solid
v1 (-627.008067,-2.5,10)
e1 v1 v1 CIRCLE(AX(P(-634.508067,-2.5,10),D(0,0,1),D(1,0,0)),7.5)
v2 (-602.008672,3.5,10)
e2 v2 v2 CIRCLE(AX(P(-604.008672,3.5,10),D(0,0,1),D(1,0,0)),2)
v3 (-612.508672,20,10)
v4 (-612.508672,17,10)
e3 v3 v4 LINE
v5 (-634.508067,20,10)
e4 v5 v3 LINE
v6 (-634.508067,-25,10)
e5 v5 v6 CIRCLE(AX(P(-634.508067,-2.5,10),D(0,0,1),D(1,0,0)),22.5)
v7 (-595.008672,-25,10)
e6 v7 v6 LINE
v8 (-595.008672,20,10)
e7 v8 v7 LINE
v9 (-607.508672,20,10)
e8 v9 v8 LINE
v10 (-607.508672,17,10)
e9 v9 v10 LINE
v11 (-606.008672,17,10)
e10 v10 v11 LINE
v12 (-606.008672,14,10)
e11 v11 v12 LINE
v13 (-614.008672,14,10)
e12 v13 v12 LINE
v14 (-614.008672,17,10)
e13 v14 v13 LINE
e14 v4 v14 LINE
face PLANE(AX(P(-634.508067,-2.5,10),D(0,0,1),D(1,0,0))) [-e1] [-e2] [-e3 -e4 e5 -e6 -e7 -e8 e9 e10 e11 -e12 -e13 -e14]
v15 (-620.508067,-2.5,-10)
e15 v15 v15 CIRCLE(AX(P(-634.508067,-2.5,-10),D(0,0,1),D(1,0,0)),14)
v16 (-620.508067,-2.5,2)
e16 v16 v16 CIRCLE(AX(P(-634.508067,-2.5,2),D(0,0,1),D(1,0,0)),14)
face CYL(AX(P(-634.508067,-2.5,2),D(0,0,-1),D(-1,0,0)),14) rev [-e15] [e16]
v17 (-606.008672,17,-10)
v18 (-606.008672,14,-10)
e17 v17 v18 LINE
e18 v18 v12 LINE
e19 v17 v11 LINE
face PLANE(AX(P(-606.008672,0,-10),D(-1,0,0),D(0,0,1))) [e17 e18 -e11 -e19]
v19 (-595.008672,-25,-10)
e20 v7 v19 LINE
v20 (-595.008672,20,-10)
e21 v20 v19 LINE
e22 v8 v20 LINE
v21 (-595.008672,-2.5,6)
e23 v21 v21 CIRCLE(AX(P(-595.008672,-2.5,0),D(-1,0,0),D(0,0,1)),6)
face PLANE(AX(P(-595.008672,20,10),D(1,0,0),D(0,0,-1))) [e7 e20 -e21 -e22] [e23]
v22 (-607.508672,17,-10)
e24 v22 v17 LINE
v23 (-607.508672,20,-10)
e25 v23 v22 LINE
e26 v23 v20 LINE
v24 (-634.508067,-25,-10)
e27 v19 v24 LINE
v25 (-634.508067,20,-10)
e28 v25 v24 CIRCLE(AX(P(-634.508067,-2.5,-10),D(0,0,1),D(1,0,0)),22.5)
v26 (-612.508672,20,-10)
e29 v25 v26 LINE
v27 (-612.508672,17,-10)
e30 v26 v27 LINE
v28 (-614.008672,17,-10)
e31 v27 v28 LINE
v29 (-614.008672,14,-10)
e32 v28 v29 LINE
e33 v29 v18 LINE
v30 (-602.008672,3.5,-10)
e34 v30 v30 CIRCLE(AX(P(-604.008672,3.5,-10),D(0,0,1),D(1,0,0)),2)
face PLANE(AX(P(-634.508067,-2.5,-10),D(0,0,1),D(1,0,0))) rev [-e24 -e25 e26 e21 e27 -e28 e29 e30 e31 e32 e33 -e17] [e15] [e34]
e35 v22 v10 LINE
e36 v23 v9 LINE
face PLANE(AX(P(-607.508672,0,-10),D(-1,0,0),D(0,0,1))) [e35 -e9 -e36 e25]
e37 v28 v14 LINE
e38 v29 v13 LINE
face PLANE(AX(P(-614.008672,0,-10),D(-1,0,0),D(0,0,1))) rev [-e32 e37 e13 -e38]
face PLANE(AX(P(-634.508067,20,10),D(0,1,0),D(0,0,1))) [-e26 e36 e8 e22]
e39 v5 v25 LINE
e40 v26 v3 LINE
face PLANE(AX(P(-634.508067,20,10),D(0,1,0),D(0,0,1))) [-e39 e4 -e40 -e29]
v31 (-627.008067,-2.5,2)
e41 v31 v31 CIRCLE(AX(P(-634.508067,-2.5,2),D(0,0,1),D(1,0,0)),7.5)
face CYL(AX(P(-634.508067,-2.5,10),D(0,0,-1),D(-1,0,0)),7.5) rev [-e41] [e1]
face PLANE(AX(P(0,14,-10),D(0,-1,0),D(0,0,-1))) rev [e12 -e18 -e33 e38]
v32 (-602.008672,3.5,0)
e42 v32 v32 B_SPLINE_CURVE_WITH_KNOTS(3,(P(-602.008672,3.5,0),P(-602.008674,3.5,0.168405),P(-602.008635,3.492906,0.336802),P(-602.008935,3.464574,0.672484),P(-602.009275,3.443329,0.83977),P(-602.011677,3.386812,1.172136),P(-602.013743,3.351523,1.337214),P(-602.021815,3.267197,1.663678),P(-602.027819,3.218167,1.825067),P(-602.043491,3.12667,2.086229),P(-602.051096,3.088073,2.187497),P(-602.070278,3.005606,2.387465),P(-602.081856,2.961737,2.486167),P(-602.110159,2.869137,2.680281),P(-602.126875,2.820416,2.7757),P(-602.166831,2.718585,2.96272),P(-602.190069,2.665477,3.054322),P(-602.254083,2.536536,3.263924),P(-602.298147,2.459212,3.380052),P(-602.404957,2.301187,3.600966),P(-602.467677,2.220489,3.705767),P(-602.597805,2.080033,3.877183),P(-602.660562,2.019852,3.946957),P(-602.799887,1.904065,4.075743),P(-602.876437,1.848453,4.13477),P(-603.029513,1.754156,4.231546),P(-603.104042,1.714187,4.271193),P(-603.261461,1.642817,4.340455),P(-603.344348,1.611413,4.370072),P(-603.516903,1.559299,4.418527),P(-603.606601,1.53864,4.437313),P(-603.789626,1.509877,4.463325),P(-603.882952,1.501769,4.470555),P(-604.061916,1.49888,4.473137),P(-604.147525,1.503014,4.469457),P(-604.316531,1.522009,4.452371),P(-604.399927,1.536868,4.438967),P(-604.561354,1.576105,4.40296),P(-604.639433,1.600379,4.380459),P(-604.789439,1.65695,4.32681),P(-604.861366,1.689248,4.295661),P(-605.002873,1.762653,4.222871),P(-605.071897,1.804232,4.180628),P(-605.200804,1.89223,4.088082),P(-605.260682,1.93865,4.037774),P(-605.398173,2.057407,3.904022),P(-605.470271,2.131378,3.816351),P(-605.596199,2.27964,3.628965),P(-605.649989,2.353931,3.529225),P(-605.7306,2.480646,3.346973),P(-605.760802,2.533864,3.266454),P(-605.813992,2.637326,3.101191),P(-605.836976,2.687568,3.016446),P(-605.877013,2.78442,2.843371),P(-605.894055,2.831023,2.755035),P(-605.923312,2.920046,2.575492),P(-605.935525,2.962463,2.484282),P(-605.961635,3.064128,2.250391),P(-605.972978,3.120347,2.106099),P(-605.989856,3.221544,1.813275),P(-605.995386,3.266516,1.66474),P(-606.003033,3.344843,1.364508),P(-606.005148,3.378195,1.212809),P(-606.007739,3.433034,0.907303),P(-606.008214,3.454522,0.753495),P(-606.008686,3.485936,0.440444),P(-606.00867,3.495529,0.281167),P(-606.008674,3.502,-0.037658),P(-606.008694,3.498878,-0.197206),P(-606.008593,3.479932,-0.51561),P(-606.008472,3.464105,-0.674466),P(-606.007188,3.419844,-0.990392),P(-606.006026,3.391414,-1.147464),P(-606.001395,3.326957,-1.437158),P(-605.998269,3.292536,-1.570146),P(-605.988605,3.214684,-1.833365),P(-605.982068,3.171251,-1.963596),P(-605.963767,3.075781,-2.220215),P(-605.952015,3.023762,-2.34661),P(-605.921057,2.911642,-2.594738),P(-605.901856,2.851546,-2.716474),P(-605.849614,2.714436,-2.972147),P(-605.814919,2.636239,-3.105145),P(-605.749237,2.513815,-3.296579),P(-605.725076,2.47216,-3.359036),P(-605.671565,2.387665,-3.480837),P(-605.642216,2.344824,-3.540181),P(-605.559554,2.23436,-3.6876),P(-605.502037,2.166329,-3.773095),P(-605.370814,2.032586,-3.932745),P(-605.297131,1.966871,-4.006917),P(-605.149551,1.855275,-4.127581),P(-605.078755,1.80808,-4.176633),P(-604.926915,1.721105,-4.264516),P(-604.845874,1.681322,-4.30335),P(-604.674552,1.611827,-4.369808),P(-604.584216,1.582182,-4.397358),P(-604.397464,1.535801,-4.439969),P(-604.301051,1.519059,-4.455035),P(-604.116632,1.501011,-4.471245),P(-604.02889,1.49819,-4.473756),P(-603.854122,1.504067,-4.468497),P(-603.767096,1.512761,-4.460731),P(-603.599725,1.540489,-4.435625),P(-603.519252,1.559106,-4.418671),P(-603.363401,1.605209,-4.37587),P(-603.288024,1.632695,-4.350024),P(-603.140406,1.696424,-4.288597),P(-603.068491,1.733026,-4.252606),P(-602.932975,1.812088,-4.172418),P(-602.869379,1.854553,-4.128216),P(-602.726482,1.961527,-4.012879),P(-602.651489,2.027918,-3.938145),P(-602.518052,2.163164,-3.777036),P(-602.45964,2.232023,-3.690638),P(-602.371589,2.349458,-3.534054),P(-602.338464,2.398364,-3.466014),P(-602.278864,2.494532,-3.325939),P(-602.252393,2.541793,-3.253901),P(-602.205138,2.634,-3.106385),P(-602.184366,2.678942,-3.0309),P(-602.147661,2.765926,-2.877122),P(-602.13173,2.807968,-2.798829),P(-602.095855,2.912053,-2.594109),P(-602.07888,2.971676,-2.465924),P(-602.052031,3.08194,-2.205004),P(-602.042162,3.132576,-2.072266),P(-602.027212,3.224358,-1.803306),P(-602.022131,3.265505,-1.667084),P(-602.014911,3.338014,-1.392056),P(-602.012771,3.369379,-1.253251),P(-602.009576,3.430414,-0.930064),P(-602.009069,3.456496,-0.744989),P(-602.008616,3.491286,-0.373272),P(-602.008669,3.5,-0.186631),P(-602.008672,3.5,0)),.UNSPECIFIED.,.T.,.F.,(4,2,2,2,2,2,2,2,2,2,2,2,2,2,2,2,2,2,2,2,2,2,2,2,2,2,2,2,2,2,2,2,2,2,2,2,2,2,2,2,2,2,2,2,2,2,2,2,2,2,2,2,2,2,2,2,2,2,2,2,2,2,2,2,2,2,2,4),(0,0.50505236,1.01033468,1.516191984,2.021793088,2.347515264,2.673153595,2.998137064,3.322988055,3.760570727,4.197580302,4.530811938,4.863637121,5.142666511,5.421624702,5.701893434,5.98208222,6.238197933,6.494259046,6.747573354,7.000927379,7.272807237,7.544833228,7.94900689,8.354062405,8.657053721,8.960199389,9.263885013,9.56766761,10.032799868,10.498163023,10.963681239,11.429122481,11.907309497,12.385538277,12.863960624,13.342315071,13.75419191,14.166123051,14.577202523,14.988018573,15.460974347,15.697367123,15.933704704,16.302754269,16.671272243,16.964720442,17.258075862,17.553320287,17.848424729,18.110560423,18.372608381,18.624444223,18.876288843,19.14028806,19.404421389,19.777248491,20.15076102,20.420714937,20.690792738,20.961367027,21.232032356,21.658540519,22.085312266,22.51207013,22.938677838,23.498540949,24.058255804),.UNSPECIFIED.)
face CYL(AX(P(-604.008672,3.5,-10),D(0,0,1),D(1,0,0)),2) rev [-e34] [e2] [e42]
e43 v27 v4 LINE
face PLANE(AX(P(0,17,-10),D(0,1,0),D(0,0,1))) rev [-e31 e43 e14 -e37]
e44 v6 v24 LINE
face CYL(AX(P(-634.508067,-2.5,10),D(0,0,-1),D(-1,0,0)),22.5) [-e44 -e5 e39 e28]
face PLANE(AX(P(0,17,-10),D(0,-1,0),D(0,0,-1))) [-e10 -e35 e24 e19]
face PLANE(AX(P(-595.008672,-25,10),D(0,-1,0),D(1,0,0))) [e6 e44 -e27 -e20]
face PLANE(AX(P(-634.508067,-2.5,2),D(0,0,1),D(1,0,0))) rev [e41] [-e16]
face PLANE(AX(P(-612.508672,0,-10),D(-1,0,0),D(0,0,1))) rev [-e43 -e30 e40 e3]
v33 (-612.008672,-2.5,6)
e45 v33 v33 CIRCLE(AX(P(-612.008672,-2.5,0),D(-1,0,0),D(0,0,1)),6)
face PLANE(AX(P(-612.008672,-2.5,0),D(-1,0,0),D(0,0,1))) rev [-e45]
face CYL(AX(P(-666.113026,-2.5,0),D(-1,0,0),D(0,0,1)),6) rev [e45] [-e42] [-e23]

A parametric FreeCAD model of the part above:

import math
import FreeCAD as App
import Part
import Sketcher

V = App.Vector


def add_polygon(sketch, points):
    """Adds a closed chain of lines whose ends are joined by coincident constraints."""
    first, n = sketch.GeometryCount, len(points)
    for a, b in zip(points, points[1:] + points[:1]):
        sketch.addGeometry(Part.LineSegment(App.Vector(*a, 0), App.Vector(*b, 0)), False)
    for i in range(n):
        sketch.addConstraint(Sketcher.Constraint("Coincident", first + i, 2, first + (i + 1) % n, 1))

doc = App.newDocument("Part")
body = doc.addObject("PartDesign::Body", "Body")

# Sketch on XY plane
sketch1 = body.newObject("Sketcher::SketchObject", "Sketch")
sketch1.AttachmentSupport = (doc.getObject("XY_Plane"), [""])
sketch1.MapMode = "FlatFace"
sketch1.addGeometry(Part.LineSegment(V(-595, 20, 0), V(-635, 20, 0)), False)
sketch1.addGeometry(Part.ArcOfCircle(Part.Circle(V(-635, -2, 0), V(0, 0, 1), 22), math.radians(90), math.radians(270)), False)
sketch1.addGeometry(Part.LineSegment(V(-635, -25, 0), V(-595, -25, 0)), False)
sketch1.addGeometry(Part.LineSegment(V(-595, -25, 0), V(-595, 20, 0)), False)
sketch1.addGeometry(Part.Circle(V(-635, -2, 0), V(0, 0, 1), 8), False)
sketch1.addConstraint(Sketcher.Constraint("Tangent", 0, 2, 1, 1))
sketch1.addConstraint(Sketcher.Constraint("Tangent", 1, 2, 2, 1))
sketch1.addConstraint(Sketcher.Constraint("Coincident", 2, 2, 3, 1))
sketch1.addConstraint(Sketcher.Constraint("Coincident", 3, 2, 0, 1))
sketch1.addConstraint(Sketcher.Constraint("Horizontal", 0))
sketch1.addConstraint(Sketcher.Constraint("Horizontal", 2))
sketch1.addConstraint(Sketcher.Constraint("Vertical", 3))
sketch1.addConstraint(Sketcher.Constraint("Coincident", 4, 3, 1, 3))
sketch1.addConstraint(Sketcher.Constraint("Diameter", 4, 15.0))
sketch1.addConstraint(Sketcher.Constraint("Radius", 1, 22.5))
sketch1.addConstraint(Sketcher.Constraint("DistanceY", -1, 1, 0, 2, 20.0))
sketch1.addConstraint(Sketcher.Constraint("DistanceX", 0, 2, 0, 1, 39.499395))
sketch1.addConstraint(Sketcher.Constraint("DistanceX", 2, 2, -1, 1, 595.008672))
pad1 = body.newObject("PartDesign::Pad", "Pad")
pad1.Profile = sketch1
pad1.Length = 20
pad1.Midplane = True

# Sketch on XY plane
sketch2 = body.newObject("Sketcher::SketchObject", "Sketch001")
sketch2.AttachmentSupport = (doc.getObject("XY_Plane"), [""])
sketch2.MapMode = "FlatFace"
add_polygon(sketch2, [(-612, 4), (-612, -2), (-595, -2), (-595, 4)])  # lines 0-3
sketch2.addGeometry(Part.LineSegment(V(-612, -2, 0), V(-595, -2, 0)), True)  # axis
sketch2.addConstraint(Sketcher.Constraint("Vertical", 0))
sketch2.addConstraint(Sketcher.Constraint("Horizontal", 1))
sketch2.addConstraint(Sketcher.Constraint("Vertical", 2))
sketch2.addConstraint(Sketcher.Constraint("Horizontal", 3))
sketch2.addConstraint(Sketcher.Constraint("Horizontal", 4))
sketch2.addConstraint(Sketcher.Constraint("Coincident", 4, 1, 0, 2))
sketch2.addConstraint(Sketcher.Constraint("Vertical", 2, 2, 4, 2))
sketch2.addConstraint(Sketcher.Constraint("DistanceX", 1, 1, 1, 2, 17.0))
sketch2.addConstraint(Sketcher.Constraint("DistanceY", 0, 2, 0, 1, 6.0))
sketch2.addConstraint(Sketcher.Constraint("DistanceY", 0, 2, -1, 1, 2.5))
sketch2.addConstraint(Sketcher.Constraint("DistanceX", 0, 2, -1, 1, 612.008672))
groove = body.newObject("PartDesign::Groove", "Groove")
groove.Profile = sketch2
groove.ReferenceAxis = (sketch2, ["Axis0"])
groove.Angle = 360

# Sketch on XY plane
sketch3 = body.newObject("Sketcher::SketchObject", "Sketch002")
sketch3.AttachmentSupport = (doc.getObject("XY_Plane"), [""])
sketch3.MapMode = "FlatFace"
sketch3.addGeometry(Part.Circle(V(-635, -2, 0), V(0, 0, 1), 14), False)
sketch3.addConstraint(Sketcher.Constraint("Diameter", 0, 28.0))
sketch3.addConstraint(Sketcher.Constraint("DistanceY", 0, 3, -1, 1, 2.5))
sketch3.addConstraint(Sketcher.Constraint("DistanceX", 0, 3, -1, 1, 634.508067))
pocket1 = body.newObject("PartDesign::Pocket", "Pocket")
pocket1.Profile = sketch3
pocket1.Type = "TwoLengths"
pocket1.Length = 2
pocket1.Length2 = 10
pocket1.Reversed = True

# Sketch on XY plane
sketch4 = body.newObject("Sketcher::SketchObject", "Sketch003")
sketch4.AttachmentSupport = (doc.getObject("XY_Plane"), [""])
sketch4.MapMode = "FlatFace"
sketch4.addGeometry(Part.Circle(V(-604, 3.5, 0), V(0, 0, 1), 2), False)
sketch4.addConstraint(Sketcher.Constraint("Diameter", 0, 4.0))
sketch4.addConstraint(Sketcher.Constraint("DistanceY", -1, 1, 0, 3, 3.5))
sketch4.addConstraint(Sketcher.Constraint("DistanceX", 0, 3, -1, 1, 604.008672))
pocket2 = body.newObject("PartDesign::Pocket", "Pocket001")
pocket2.Profile = sketch4
pocket2.Type = "ThroughAll"
pocket2.Midplane = True

# Sketch on XY plane
sketch5 = body.newObject("Sketcher::SketchObject", "Sketch004")
sketch5.AttachmentSupport = (doc.getObject("XY_Plane"), [""])
sketch5.MapMode = "FlatFace"
add_polygon(sketch5, [(-607.5, 20), (-612.5, 20), (-612.5, 17), (-614, 17), (-614, 14), (-606, 14), (-606, 17), (-607.5, 17)])  # lines 0-7
sketch5.addConstraint(Sketcher.Constraint("Horizontal", 0))
sketch5.addConstraint(Sketcher.Constraint("Vertical", 1))
sketch5.addConstraint(Sketcher.Constraint("Horizontal", 2))
sketch5.addConstraint(Sketcher.Constraint("Vertical", 3))
sketch5.addConstraint(Sketcher.Constraint("Horizontal", 4))
sketch5.addConstraint(Sketcher.Constraint("Vertical", 5))
sketch5.addConstraint(Sketcher.Constraint("Horizontal", 6))
sketch5.addConstraint(Sketcher.Constraint("Vertical", 7))
sketch5.addConstraint(Sketcher.Constraint("Horizontal", 2, 2, 5, 2))
sketch5.addConstraint(Sketcher.Constraint("Equal", 2, 6))
sketch5.addConstraint(Sketcher.Constraint("Equal", 1, 3))
sketch5.addConstraint(Sketcher.Constraint("DistanceX", 0, 2, 0, 1, 5.0))
sketch5.addConstraint(Sketcher.Constraint("DistanceX", 4, 1, 4, 2, 8.0))
sketch5.addConstraint(Sketcher.Constraint("DistanceY", 1, 2, 1, 1, 3.0))
sketch5.addConstraint(Sketcher.Constraint("DistanceY", -1, 1, 0, 2, 20.0))
sketch5.addConstraint(Sketcher.Constraint("DistanceX", 0, 2, -1, 1, 612.508672))
pocket3 = body.newObject("PartDesign::Pocket", "Pocket002")
pocket3.Profile = sketch5
pocket3.Type = "ThroughAll"
pocket3.Midplane = True

doc.recompute()
